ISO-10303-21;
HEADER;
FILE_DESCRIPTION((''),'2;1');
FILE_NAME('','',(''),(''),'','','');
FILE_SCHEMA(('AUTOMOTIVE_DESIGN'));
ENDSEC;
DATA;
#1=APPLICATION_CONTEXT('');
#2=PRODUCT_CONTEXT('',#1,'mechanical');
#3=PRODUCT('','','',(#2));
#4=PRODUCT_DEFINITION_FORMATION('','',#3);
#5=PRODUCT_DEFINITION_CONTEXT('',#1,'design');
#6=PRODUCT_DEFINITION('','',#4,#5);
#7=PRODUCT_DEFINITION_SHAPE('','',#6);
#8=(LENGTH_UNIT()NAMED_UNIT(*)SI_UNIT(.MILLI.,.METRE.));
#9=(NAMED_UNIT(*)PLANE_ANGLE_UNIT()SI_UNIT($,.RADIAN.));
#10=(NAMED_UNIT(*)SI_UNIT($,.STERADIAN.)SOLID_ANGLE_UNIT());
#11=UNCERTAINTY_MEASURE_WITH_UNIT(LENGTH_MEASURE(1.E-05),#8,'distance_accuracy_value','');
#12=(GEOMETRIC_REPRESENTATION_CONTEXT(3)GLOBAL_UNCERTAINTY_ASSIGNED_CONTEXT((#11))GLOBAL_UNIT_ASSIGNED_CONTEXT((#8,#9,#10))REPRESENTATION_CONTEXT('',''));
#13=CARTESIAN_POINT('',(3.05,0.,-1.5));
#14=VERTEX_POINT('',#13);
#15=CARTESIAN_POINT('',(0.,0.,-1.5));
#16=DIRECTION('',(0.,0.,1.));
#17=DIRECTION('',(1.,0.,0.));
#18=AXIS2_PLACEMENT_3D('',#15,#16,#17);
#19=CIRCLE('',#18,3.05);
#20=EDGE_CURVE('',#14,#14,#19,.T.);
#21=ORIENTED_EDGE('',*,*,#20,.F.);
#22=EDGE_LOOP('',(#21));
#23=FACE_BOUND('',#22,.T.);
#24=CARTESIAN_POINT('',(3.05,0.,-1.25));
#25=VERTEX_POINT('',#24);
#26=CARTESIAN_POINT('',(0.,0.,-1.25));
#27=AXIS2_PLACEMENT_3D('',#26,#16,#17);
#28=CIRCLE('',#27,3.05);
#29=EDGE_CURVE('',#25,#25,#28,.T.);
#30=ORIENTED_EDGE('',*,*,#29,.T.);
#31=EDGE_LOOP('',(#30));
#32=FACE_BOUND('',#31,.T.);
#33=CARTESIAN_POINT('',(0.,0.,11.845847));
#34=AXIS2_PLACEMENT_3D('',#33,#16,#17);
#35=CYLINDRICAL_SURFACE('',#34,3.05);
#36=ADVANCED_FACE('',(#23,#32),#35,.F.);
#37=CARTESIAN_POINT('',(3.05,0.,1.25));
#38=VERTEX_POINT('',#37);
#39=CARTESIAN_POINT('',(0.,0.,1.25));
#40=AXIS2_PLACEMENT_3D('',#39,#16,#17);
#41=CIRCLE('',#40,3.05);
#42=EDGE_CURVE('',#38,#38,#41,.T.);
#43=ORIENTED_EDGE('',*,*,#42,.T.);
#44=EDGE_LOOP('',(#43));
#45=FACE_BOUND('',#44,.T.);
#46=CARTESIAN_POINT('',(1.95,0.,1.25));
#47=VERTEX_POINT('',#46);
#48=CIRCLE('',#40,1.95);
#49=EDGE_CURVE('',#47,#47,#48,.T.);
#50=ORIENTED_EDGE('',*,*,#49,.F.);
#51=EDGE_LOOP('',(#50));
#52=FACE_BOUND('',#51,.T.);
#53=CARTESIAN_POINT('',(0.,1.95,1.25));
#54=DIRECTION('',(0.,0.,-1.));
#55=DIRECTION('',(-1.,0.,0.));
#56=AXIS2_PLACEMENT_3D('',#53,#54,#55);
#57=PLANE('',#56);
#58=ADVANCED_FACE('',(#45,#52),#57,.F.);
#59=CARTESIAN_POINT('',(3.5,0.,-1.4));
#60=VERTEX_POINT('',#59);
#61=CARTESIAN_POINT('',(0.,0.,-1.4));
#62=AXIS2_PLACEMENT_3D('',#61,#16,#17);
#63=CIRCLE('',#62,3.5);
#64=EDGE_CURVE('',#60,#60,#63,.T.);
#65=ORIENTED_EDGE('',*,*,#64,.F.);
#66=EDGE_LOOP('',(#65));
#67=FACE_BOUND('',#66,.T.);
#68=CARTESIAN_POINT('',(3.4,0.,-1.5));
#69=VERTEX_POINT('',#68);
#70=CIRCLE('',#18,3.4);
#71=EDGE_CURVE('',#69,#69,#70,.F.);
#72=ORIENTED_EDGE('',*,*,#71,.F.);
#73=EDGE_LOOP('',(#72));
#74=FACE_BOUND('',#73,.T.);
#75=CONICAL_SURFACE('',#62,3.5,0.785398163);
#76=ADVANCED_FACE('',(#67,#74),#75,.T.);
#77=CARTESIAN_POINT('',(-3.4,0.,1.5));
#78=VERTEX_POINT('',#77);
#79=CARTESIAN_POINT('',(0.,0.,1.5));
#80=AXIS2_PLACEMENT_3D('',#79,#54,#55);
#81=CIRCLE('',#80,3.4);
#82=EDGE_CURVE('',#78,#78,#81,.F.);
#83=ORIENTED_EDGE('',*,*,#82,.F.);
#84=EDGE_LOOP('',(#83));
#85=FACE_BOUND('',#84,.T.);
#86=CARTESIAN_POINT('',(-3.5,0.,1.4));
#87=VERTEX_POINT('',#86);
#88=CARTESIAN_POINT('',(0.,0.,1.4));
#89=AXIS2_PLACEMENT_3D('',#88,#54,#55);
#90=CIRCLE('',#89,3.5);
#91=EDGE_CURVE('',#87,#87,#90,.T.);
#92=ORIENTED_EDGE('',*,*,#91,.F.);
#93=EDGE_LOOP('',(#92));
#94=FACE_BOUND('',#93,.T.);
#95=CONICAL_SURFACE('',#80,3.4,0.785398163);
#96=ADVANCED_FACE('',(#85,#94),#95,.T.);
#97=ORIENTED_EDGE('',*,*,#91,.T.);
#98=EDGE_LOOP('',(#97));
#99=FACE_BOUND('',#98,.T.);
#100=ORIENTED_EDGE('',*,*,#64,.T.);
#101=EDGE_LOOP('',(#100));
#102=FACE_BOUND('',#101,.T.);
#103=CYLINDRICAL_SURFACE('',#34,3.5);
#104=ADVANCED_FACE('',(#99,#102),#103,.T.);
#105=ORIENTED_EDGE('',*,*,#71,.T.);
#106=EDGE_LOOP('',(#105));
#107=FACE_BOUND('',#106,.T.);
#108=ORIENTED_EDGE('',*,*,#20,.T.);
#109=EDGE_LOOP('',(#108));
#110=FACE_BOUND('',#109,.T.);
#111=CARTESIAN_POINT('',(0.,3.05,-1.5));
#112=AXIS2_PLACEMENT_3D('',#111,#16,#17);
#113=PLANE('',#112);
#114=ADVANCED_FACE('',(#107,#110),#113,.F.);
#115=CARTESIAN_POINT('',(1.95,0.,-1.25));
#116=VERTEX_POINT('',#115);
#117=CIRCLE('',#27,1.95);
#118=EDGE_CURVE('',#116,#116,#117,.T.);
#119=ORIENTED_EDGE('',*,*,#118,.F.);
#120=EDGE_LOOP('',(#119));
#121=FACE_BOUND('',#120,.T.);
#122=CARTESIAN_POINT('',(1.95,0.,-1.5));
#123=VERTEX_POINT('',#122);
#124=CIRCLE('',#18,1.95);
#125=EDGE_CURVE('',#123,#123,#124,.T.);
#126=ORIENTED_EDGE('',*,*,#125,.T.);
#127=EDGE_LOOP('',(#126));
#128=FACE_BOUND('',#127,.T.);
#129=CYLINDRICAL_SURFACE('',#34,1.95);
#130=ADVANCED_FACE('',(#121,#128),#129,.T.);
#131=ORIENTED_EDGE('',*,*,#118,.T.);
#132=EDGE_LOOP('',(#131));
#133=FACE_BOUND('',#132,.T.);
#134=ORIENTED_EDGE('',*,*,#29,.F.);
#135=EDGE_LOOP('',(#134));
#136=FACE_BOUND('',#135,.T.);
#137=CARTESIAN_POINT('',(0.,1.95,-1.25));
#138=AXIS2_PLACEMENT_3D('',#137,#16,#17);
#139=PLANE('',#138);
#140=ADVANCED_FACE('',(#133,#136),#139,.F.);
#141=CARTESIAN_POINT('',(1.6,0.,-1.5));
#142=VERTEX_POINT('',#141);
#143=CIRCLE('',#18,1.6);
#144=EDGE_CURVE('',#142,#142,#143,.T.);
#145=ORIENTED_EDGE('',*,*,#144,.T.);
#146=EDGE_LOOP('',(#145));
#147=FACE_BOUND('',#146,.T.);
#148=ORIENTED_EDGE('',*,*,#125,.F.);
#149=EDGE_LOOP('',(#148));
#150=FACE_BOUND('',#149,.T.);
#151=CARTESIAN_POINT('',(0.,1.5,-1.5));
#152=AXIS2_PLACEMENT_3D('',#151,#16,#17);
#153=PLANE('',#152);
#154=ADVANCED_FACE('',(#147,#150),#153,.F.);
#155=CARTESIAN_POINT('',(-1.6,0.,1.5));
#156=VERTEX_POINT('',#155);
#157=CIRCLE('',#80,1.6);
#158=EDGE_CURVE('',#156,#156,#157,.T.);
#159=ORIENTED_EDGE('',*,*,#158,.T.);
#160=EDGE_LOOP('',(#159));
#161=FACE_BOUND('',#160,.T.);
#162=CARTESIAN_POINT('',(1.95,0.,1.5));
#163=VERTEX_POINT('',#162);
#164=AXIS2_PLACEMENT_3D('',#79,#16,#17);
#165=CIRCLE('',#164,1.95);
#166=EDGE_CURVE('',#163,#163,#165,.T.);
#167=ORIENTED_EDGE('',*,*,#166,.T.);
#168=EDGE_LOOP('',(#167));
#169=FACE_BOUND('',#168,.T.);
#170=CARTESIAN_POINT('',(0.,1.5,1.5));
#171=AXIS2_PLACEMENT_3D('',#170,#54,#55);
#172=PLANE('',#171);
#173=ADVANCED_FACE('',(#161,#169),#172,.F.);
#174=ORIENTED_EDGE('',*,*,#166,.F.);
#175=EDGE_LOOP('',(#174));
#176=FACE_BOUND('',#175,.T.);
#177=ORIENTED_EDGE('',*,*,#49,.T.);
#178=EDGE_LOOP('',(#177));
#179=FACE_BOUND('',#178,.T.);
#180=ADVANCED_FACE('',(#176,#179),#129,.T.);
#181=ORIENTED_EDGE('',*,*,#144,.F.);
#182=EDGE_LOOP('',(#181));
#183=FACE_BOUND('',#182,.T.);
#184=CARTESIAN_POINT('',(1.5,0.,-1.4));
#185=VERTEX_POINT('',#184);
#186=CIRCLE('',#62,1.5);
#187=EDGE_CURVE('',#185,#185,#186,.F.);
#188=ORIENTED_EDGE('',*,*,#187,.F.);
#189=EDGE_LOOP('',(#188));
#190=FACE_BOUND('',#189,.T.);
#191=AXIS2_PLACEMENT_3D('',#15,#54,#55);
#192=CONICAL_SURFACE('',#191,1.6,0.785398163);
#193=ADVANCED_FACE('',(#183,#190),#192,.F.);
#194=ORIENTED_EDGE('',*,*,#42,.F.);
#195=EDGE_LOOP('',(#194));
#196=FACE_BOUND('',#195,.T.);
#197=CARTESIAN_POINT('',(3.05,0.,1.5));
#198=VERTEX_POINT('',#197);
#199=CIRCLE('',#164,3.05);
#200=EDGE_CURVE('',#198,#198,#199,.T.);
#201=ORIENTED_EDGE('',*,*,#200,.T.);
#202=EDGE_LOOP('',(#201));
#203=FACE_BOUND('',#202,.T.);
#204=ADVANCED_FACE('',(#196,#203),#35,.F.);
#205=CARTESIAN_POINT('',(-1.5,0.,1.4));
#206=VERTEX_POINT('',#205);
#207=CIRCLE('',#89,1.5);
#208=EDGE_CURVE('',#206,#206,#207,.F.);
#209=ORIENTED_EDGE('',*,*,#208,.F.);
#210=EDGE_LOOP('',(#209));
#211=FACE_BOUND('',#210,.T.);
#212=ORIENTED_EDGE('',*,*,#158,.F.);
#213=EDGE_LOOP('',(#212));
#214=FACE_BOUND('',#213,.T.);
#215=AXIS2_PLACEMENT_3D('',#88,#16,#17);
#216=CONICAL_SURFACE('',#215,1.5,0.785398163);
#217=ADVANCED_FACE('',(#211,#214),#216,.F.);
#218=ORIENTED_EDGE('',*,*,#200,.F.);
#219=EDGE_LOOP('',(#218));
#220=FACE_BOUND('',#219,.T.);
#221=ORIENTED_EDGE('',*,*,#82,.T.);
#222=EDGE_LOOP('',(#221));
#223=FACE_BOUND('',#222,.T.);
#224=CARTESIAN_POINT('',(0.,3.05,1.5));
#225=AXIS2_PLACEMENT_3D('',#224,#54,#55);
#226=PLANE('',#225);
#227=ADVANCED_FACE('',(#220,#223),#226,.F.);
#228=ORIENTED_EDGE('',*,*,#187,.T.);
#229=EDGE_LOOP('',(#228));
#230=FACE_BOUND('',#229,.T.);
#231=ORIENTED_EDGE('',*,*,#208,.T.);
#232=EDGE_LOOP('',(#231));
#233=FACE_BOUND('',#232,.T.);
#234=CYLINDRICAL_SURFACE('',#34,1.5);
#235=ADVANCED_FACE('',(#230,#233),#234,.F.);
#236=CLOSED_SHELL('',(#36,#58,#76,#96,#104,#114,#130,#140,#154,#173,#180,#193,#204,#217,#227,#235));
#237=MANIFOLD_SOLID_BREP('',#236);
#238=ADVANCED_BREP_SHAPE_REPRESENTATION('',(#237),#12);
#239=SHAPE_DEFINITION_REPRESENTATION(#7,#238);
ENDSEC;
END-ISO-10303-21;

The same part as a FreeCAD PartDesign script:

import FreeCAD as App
import Part
import Sketcher


def edges_at(feature, points):
    """Names of the edges that pass closest to the given points."""
    edges = feature.Shape.Edges
    near = lambda p: min(range(len(edges)), key=lambda i: edges[i].distToShape(Part.Vertex(*p))[0])
    return sorted({f"Edge{near(p) + 1}" for p in points})


def add_polygon(sketch, points):
    """Adds a closed chain of lines whose ends are joined by coincident constraints."""
    first, n = sketch.GeometryCount, len(points)
    for a, b in zip(points, points[1:] + points[:1]):
        sketch.addGeometry(Part.LineSegment(App.Vector(*a, 0), App.Vector(*b, 0)), False)
    for i in range(n):
        sketch.addConstraint(Sketcher.Constraint("Coincident", first + i, 2, first + (i + 1) % n, 1))

doc = App.newDocument("Part")
body = doc.addObject("PartDesign::Body", "Body")

# Sketch on YZ plane
sketch1 = doc.addObject("Sketcher::SketchObject", "Sketch")
body.addObject(sketch1)
sketch1.AttachmentSupport = (doc.YZ_Plane, [""])
sketch1.MapMode = "FlatFace"
add_polygon(sketch1, [(1.5, 1.5), (1.5, -1.5), (1.95, -1.5), (1.95, -1.25), (3.05, -1.25), (3.05, -1.5), (3.5, -1.5), (3.5, 1.5), (3.05, 1.5), (3.05, 1.25), (1.95, 1.25), (1.95, 1.5)])  # lines 0-11
sketch1.addConstraint([
    Sketcher.Constraint("Vertical", 0),
    Sketcher.Constraint("Horizontal", 1),
    Sketcher.Constraint("Vertical", 2),
    Sketcher.Constraint("Horizontal", 3),
    Sketcher.Constraint("Vertical", 4),
    Sketcher.Constraint("Horizontal", 5),
    Sketcher.Constraint("Vertical", 6),
    Sketcher.Constraint("Horizontal", 7),
    Sketcher.Constraint("Vertical", 8),
    Sketcher.Constraint("Horizontal", 9),
    Sketcher.Constraint("Vertical", 10),
    Sketcher.Constraint("Horizontal", 11),
    Sketcher.Constraint("Symmetric", 4, 2, 7, 2, -1),
    Sketcher.Constraint("Symmetric", 2, 2, 9, 2, -1),
    Sketcher.Constraint("Horizontal", 1, 2, 4, 2),
    Sketcher.Constraint("Horizontal", 7, 2, 10, 2),
    Sketcher.Constraint("Equal", 1, 5),
    Sketcher.Constraint("DistanceY", 0, 2, 0, 1, 3.0),
    Sketcher.Constraint("DistanceX", 3, 1, 3, 2, 1.1),
    Sketcher.Constraint("DistanceX", 0, 2, 5, 2, 2.0),
    Sketcher.Constraint("DistanceY", 2, 1, 2, 2, 0.25),
    Sketcher.Constraint("DistanceX", -1, 1, 0, 2, 1.5),
])
revolution = doc.addObject("PartDesign::Revolution", "Revolution")
body.addObject(revolution)
revolution.Profile = sketch1
revolution.ReferenceAxis = (sketch1, ["V_Axis"])
revolution.Angle = 360
doc.recompute()

chamfer = doc.addObject("PartDesign::Chamfer", "Chamfer")
body.addObject(chamfer)
chamfer.Base = (revolution, edges_at(revolution, [
    (0, -3.5, 1.5),
    (0, -3.5, -1.5),
    (0, -1.5, -1.5),
    (0, -1.5, 1.5),
]))
chamfer.Size = 0.1

doc.recompute()
